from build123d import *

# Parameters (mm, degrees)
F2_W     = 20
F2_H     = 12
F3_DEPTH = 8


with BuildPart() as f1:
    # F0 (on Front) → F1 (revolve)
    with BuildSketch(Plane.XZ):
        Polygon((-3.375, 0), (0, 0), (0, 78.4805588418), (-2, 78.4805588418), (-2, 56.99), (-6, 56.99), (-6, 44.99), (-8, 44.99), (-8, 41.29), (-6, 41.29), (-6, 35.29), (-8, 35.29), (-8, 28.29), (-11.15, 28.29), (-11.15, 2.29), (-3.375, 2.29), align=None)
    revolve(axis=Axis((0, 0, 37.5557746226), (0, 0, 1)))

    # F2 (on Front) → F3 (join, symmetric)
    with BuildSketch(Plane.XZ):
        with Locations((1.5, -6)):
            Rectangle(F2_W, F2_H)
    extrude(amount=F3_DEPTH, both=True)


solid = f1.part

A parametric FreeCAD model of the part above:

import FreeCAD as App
import Part
import Sketcher
from FreeCAD import Vector

doc = App.newDocument("Part")
body = doc.addObject("PartDesign::Body", "Body")

# Sketch on XZ plane
sketch1 = body.newObject("Sketcher::SketchObject", "Sketch")
sketch1.AttachmentSupport = (doc.getObject("XZ_Plane"), [""])
sketch1.MapMode = "FlatFace"
sketch1.addGeometry(Part.LineSegment(Vector(-3.4, 0, 0), Vector(0, 0, 0)), False)
sketch1.addGeometry(Part.LineSegment(Vector(0, 0, 0), Vector(0, 78.5, 0)), False)
sketch1.addGeometry(Part.LineSegment(Vector(0, 78.5, 0), Vector(-2, 78.5, 0)), False)
sketch1.addGeometry(Part.LineSegment(Vector(-2, 78.5, 0), Vector(-2, 57, 0)), False)
sketch1.addGeometry(Part.LineSegment(Vector(-2, 57, 0), Vector(-6, 57, 0)), False)
sketch1.addGeometry(Part.LineSegment(Vector(-6, 57, 0), Vector(-6, 45, 0)), False)
sketch1.addGeometry(Part.LineSegment(Vector(-6, 45, 0), Vector(-8, 45, 0)), False)
sketch1.addGeometry(Part.LineSegment(Vector(-8, 45, 0), Vector(-8, 41.3, 0)), False)
sketch1.addGeometry(Part.LineSegment(Vector(-8, 41.3, 0), Vector(-6, 41.3, 0)), False)
sketch1.addGeometry(Part.LineSegment(Vector(-6, 41.3, 0), Vector(-6, 35.3, 0)), False)
sketch1.addGeometry(Part.LineSegment(Vector(-6, 35.3, 0), Vector(-8, 35.3, 0)), False)
sketch1.addGeometry(Part.LineSegment(Vector(-8, 35.3, 0), Vector(-8, 28.3, 0)), False)
sketch1.addGeometry(Part.LineSegment(Vector(-8, 28.3, 0), Vector(-11.2, 28.3, 0)), False)
sketch1.addGeometry(Part.LineSegment(Vector(-11.2, 28.3, 0), Vector(-11.2, 2.3, 0)), False)
sketch1.addGeometry(Part.LineSegment(Vector(-11.2, 2.3, 0), Vector(-3.4, 2.3, 0)), False)
sketch1.addGeometry(Part.LineSegment(Vector(-3.4, 2.3, 0), Vector(-3.4, 0, 0)), False)
sketch1.addConstraint(Sketcher.Constraint("Coincident", 0, 2, 1, 1))
sketch1.addConstraint(Sketcher.Constraint("Coincident", 1, 2, 2, 1))
sketch1.addConstraint(Sketcher.Constraint("Coincident", 2, 2, 3, 1))
sketch1.addConstraint(Sketcher.Constraint("Coincident", 3, 2, 4, 1))
sketch1.addConstraint(Sketcher.Constraint("Coincident", 4, 2, 5, 1))
sketch1.addConstraint(Sketcher.Constraint("Coincident", 5, 2, 6, 1))
sketch1.addConstraint(Sketcher.Constraint("Coincident", 6, 2, 7, 1))
sketch1.addConstraint(Sketcher.Constraint("Coincident", 7, 2, 8, 1))
sketch1.addConstraint(Sketcher.Constraint("Coincident", 8, 2, 9, 1))
sketch1.addConstraint(Sketcher.Constraint("Coincident", 9, 2, 10, 1))
sketch1.addConstraint(Sketcher.Constraint("Coincident", 10, 2, 11, 1))
sketch1.addConstraint(Sketcher.Constraint("Coincident", 11, 2, 12, 1))
sketch1.addConstraint(Sketcher.Constraint("Coincident", 12, 2, 13, 1))
sketch1.addConstraint(Sketcher.Constraint("Coincident", 13, 2, 14, 1))
sketch1.addConstraint(Sketcher.Constraint("Coincident", 14, 2, 15, 1))
sketch1.addConstraint(Sketcher.Constraint("Coincident", 15, 2, 0, 1))
sketch1.addConstraint(Sketcher.Constraint("Horizontal", 0))
sketch1.addConstraint(Sketcher.Constraint("Vertical", 1))
sketch1.addConstraint(Sketcher.Constraint("Horizontal", 2))
sketch1.addConstraint(Sketcher.Constraint("Vertical", 3))
sketch1.addConstraint(Sketcher.Constraint("Horizontal", 4))
sketch1.addConstraint(Sketcher.Constraint("Vertical", 5))
sketch1.addConstraint(Sketcher.Constraint("Horizontal", 6))
sketch1.addConstraint(Sketcher.Constraint("Vertical", 7))
sketch1.addConstraint(Sketcher.Constraint("Horizontal", 8))
sketch1.addConstraint(Sketcher.Constraint("Vertical", 9))
sketch1.addConstraint(Sketcher.Constraint("Horizontal", 10))
sketch1.addConstraint(Sketcher.Constraint("Vertical", 11))
sketch1.addConstraint(Sketcher.Constraint("Horizontal", 12))
sketch1.addConstraint(Sketcher.Constraint("Vertical", 13))
sketch1.addConstraint(Sketcher.Constraint("Horizontal", 14))
sketch1.addConstraint(Sketcher.Constraint("Vertical", 15))
sketch1.addConstraint(Sketcher.Constraint("Coincident", 0, 2, -1, 1))
sketch1.addConstraint(Sketcher.Constraint("Vertical", 5, 2, 8, 2))
sketch1.addConstraint(Sketcher.Constraint("Vertical", 7, 2, 10, 2))
sketch1.addConstraint(Sketcher.Constraint("Equal", 2, 6))
sketch1.addConstraint(Sketcher.Constraint("DistanceX", 2, 2, 2, 1, 2.0))
sketch1.addConstraint(Sketcher.Constraint("DistanceX", 4, 2, 4, 1, 4.0))
sketch1.addConstraint(Sketcher.Constraint("DistanceY", 5, 2, 5, 1, 12.0))
sketch1.addConstraint(Sketcher.Constraint("DistanceY", 9, 2, 9, 1, 6.0))
sketch1.addConstraint(Sketcher.Constraint("DistanceY", 11, 2, 11, 1, 7.0))
sketch1.addConstraint(Sketcher.Constraint("DistanceY", 13, 2, 13, 1, 26.0))
sketch1.addConstraint(Sketcher.Constraint("DistanceY", 7, 2, 7, 1, 3.7))
sketch1.addConstraint(Sketcher.Constraint("DistanceX", 12, 2, 12, 1, 3.15))
sketch1.addConstraint(Sketcher.Constraint("DistanceY", 15, 2, 15, 1, 2.29))
sketch1.addConstraint(Sketcher.Constraint("DistanceX", 0, 1, 0, 2, 3.375))
sketch1.addConstraint(Sketcher.Constraint("DistanceY", 1, 1, 1, 2, 78.480559))
revolution = body.newObject("PartDesign::Revolution", "Revolution")
revolution.Profile = sketch1
revolution.ReferenceAxis = (sketch1, ["V_Axis"])
revolution.Angle = 360

# Sketch on XZ plane
sketch2 = body.newObject("Sketcher::SketchObject", "Sketch001")
sketch2.AttachmentSupport = (doc.getObject("XZ_Plane"), [""])
sketch2.MapMode = "FlatFace"
sketch2.addGeometry(Part.LineSegment(Vector(-8, 0, 0), Vector(-8, -12, 0)), False)
sketch2.addGeometry(Part.LineSegment(Vector(-8, -12, 0), Vector(12, -12, 0)), False)
sketch2.addGeometry(Part.LineSegment(Vector(12, -12, 0), Vector(12, 0, 0)), False)
sketch2.addGeometry(Part.LineSegment(Vector(12, 0, 0), Vector(-8, 0, 0)), False)
sketch2.addConstraint(Sketcher.Constraint("Coincident", 0, 2, 1, 1))
sketch2.addConstraint(Sketcher.Constraint("Coincident", 1, 2, 2, 1))
sketch2.addConstraint(Sketcher.Constraint("Coincident", 2, 2, 3, 1))
sketch2.addConstraint(Sketcher.Constraint("Coincident", 3, 2, 0, 1))
sketch2.addConstraint(Sketcher.Constraint("Vertical", 0))
sketch2.addConstraint(Sketcher.Constraint("Horizontal", 1))
sketch2.addConstraint(Sketcher.Constraint("Vertical", 2))
sketch2.addConstraint(Sketcher.Constraint("Horizontal", 3))
sketch2.addConstraint(Sketcher.Constraint("PointOnObject", 2, 2, -1))
sketch2.addConstraint(Sketcher.Constraint("DistanceX", 1, 1, 1, 2, 20.0))
sketch2.addConstraint(Sketcher.Constraint("DistanceY", 0, 2, 0, 1, 12.0))
sketch2.addConstraint(Sketcher.Constraint("DistanceX", 0, 2, -1, 1, 8.5))
pad1 = body.newObject("PartDesign::Pad", "Pad")
pad1.Profile = sketch2
pad1.Length = 16
pad1.Midplane = True

doc.recompute()
